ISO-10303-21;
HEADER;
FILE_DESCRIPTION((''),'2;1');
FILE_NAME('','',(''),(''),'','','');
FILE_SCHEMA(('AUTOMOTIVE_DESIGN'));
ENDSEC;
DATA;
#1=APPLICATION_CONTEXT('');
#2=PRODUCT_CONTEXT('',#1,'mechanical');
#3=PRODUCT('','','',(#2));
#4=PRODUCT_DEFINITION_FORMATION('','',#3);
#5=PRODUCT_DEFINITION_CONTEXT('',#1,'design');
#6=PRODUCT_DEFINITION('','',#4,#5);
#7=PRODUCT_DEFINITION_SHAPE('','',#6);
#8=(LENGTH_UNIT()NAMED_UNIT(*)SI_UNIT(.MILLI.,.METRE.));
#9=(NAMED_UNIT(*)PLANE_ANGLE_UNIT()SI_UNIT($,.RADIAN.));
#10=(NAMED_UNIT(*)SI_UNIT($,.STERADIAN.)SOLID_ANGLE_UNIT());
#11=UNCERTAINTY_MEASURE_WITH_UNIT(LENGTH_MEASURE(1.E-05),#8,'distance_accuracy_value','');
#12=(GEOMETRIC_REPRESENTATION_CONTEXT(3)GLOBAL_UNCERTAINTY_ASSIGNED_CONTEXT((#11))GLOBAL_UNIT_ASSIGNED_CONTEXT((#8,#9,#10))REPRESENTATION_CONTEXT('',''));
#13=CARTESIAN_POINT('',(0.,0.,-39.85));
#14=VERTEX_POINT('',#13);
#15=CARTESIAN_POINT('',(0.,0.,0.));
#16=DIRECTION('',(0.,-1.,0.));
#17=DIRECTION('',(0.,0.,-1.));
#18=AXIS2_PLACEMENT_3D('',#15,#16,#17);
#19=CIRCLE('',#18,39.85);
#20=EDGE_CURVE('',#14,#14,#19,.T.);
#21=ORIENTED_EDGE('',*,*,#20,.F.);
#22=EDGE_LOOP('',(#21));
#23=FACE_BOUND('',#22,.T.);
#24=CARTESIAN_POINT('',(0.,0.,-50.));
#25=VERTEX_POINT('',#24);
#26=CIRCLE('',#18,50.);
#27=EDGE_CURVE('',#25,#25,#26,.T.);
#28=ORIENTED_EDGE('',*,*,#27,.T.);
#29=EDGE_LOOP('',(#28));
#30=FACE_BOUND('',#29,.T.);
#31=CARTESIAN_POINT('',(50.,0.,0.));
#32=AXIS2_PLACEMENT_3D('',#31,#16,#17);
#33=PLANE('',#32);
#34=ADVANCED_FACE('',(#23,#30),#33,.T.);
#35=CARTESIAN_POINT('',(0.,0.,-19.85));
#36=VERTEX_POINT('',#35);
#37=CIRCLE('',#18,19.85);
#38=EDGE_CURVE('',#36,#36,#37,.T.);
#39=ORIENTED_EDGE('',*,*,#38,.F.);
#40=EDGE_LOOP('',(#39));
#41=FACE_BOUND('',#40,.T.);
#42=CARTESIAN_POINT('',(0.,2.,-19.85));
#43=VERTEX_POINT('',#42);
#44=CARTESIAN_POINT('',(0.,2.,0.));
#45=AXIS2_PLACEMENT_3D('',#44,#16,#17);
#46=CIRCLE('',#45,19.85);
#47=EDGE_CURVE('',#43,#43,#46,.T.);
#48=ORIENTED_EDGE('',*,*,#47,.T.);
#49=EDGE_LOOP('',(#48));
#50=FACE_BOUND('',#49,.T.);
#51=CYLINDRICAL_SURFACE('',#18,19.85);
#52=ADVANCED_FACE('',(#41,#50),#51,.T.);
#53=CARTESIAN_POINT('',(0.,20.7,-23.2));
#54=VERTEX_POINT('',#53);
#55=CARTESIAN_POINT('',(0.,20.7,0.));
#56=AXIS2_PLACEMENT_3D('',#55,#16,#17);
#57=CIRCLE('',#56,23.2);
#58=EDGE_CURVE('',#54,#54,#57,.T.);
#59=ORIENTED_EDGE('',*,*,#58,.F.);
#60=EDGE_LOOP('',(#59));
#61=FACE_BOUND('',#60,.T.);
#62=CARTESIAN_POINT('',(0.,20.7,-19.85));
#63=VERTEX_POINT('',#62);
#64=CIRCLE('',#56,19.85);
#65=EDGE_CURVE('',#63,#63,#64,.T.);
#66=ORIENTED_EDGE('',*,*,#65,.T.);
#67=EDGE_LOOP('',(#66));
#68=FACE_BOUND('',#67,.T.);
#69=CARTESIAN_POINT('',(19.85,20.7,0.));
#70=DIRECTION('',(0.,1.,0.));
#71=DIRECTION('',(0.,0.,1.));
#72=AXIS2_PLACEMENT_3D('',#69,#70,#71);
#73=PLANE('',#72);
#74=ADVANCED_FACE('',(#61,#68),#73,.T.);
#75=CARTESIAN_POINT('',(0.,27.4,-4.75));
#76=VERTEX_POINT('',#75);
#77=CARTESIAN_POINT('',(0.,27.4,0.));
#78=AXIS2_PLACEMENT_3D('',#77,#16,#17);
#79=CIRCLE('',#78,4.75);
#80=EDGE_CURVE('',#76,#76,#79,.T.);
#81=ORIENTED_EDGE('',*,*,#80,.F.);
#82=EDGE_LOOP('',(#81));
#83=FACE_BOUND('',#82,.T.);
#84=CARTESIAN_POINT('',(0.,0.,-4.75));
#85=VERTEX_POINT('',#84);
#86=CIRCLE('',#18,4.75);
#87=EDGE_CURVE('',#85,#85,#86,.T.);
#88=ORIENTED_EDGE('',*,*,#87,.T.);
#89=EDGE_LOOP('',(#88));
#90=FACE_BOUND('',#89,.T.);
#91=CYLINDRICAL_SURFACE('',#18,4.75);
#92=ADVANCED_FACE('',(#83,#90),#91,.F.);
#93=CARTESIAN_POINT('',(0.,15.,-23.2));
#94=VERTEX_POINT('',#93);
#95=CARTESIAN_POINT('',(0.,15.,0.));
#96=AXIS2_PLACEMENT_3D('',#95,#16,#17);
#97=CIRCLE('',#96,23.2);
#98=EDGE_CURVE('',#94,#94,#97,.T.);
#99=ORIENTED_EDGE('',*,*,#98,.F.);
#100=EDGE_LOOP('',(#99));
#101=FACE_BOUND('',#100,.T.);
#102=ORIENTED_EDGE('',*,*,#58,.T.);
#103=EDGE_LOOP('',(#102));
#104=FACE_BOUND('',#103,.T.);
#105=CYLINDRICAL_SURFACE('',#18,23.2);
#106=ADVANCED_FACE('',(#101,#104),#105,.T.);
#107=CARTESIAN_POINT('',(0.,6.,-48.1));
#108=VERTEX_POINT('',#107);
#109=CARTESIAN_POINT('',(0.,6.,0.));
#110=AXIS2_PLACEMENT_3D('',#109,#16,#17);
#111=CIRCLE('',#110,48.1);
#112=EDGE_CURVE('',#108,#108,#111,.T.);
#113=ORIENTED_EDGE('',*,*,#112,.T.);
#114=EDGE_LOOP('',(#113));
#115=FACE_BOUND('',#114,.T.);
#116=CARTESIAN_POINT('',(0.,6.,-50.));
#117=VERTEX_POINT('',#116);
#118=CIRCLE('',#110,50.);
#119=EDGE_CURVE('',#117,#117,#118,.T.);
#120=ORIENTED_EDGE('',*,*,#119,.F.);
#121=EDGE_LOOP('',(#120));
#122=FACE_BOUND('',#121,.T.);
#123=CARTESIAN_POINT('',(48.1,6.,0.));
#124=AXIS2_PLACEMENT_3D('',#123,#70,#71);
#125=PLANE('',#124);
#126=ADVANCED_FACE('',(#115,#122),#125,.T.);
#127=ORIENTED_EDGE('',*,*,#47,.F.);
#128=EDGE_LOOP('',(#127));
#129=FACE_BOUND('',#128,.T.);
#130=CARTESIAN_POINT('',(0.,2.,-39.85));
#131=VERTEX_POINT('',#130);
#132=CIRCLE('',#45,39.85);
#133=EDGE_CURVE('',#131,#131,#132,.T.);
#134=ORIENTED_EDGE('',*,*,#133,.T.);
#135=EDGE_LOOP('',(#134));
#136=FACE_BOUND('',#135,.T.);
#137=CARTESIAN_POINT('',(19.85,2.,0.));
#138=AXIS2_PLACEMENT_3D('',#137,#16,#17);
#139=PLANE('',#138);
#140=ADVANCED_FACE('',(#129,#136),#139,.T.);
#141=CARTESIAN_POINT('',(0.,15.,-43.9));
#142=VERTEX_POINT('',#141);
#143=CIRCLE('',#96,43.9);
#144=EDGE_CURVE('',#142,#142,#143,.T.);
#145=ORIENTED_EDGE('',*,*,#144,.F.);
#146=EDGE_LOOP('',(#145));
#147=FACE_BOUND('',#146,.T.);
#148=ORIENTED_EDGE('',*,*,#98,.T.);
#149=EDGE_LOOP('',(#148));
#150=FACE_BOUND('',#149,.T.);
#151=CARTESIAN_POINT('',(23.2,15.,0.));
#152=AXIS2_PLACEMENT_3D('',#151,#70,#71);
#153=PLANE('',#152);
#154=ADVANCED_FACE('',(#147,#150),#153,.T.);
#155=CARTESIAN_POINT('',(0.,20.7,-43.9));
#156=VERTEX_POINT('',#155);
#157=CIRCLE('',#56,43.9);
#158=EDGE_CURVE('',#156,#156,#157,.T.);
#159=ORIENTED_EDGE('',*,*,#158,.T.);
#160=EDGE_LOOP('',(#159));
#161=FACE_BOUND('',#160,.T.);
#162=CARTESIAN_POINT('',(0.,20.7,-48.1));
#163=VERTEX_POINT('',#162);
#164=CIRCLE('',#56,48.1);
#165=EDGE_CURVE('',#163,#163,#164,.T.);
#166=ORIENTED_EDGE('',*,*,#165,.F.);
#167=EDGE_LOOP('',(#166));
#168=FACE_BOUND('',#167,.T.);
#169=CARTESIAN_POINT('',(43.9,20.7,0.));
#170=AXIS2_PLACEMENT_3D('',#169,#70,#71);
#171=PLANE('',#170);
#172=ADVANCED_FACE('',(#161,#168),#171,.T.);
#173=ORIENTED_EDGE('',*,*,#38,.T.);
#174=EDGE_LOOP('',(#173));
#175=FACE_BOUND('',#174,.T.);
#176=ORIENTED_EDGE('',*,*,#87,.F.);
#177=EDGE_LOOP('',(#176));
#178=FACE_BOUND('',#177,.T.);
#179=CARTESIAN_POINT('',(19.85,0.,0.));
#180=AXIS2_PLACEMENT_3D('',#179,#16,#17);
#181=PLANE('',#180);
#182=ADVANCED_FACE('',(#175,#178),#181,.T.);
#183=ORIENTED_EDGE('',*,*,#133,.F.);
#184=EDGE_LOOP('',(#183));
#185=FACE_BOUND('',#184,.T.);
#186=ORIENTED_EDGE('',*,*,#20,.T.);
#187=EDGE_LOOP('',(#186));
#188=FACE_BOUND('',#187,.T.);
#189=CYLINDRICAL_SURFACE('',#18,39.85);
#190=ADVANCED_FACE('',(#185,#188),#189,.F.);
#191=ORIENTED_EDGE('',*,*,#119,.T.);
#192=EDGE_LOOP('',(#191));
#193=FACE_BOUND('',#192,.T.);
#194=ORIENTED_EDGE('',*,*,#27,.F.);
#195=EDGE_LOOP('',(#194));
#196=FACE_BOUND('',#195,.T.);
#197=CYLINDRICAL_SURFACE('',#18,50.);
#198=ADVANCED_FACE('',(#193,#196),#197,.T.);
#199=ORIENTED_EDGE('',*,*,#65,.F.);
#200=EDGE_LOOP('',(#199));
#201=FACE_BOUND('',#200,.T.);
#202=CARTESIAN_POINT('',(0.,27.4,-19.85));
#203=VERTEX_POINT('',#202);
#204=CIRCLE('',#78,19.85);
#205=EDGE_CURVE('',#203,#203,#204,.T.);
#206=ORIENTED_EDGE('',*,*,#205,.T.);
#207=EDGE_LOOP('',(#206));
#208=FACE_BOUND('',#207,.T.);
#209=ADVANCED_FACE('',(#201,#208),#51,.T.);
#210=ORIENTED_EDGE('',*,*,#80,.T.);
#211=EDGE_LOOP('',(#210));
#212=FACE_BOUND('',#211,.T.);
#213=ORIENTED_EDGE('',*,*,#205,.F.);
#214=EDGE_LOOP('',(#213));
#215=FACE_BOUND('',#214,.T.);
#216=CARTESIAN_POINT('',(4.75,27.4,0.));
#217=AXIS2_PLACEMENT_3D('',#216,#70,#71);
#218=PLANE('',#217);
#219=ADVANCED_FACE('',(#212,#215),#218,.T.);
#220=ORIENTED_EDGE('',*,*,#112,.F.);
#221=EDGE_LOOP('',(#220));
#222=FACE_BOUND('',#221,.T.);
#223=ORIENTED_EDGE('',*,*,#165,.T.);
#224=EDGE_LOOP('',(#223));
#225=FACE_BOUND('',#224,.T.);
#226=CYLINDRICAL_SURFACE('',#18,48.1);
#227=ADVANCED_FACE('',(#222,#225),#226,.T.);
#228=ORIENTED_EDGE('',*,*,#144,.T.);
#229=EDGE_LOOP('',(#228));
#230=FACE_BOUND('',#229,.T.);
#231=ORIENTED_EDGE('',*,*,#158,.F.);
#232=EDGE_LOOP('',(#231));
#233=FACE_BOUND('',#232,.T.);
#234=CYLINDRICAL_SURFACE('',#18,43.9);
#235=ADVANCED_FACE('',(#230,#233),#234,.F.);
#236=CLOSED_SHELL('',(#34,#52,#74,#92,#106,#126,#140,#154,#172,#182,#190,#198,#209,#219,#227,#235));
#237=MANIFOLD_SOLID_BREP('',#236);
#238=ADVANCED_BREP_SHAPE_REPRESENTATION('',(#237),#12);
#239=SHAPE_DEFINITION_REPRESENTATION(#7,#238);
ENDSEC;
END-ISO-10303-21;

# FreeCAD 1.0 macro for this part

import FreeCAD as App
import Part
import Sketcher


def add_polygon(sketch, points):
    """Adds a closed chain of lines whose ends are joined by coincident constraints."""
    first, n = sketch.GeometryCount, len(points)
    for a, b in zip(points, points[1:] + points[:1]):
        sketch.addGeometry(Part.LineSegment(App.Vector(*a, 0), App.Vector(*b, 0)), False)
    for i in range(n):
        sketch.addConstraint(Sketcher.Constraint("Coincident", first + i, 2, first + (i + 1) % n, 1))

doc = App.newDocument("Part")
body = doc.addObject("PartDesign::Body", "Body")

# Sketch on XY plane
sketch1 = body.newObject("Sketcher::SketchObject", "Sketch")
sketch1.AttachmentSupport = (doc.getObject("XY_Plane"), [""])
sketch1.MapMode = "FlatFace"
add_polygon(sketch1, [(4.8, 27.4), (4.8, 0), (19.9, 0), (19.9, 2), (39.9, 2), (39.9, 0), (50, 0), (50, 6), (48.1, 6), (48.1, 20.7), (43.9, 20.7), (43.9, 15), (23.2, 15), (23.2, 20.7), (19.9, 20.7), (19.9, 27.4)])  # lines 0-15
sketch1.addConstraint([
    Sketcher.Constraint("Vertical", 0),
    Sketcher.Constraint("Horizontal", 1),
    Sketcher.Constraint("Vertical", 2),
    Sketcher.Constraint("Horizontal", 3),
    Sketcher.Constraint("Vertical", 4),
    Sketcher.Constraint("Horizontal", 5),
    Sketcher.Constraint("Vertical", 6),
    Sketcher.Constraint("Horizontal", 7),
    Sketcher.Constraint("Vertical", 8),
    Sketcher.Constraint("Horizontal", 9),
    Sketcher.Constraint("Vertical", 10),
    Sketcher.Constraint("Horizontal", 11),
    Sketcher.Constraint("Vertical", 12),
    Sketcher.Constraint("Horizontal", 13),
    Sketcher.Constraint("Vertical", 14),
    Sketcher.Constraint("Horizontal", 15),
    Sketcher.Constraint("PointOnObject", 0, 2, -1),
    Sketcher.Constraint("PointOnObject", 4, 2, -1),
    Sketcher.Constraint("Horizontal", 9, 2, 12, 2),
    Sketcher.Constraint("Vertical", 2, 2, 13, 2),
    Sketcher.Constraint("DistanceX", 3, 1, 3, 2, 20.0),
    Sketcher.Constraint("DistanceY", 2, 1, 2, 2, 2.0),
    Sketcher.Constraint("DistanceY", 6, 1, 6, 2, 6.0),
    Sketcher.Constraint("DistanceX", 1, 1, 1, 2, 15.1),
    Sketcher.Constraint("DistanceX", 7, 2, 7, 1, 1.9),
    Sketcher.Constraint("DistanceX", 9, 2, 9, 1, 4.2),
    Sketcher.Constraint("DistanceX", 11, 2, 11, 1, 20.7),
    Sketcher.Constraint("DistanceY", 0, 2, 0, 1, 27.4),
    Sketcher.Constraint("DistanceY", 8, 1, 8, 2, 14.7),
    Sketcher.Constraint("DistanceY", 10, 2, 10, 1, 5.7),
    Sketcher.Constraint("DistanceX", -1, 1, 5, 2, 50.0),
    Sketcher.Constraint("DistanceX", 5, 1, 5, 2, 10.15),
])
revolution = body.newObject("PartDesign::Revolution", "Revolution")
revolution.Profile = sketch1
revolution.ReferenceAxis = (sketch1, ["V_Axis"])
revolution.Angle = 360

doc.recompute()
